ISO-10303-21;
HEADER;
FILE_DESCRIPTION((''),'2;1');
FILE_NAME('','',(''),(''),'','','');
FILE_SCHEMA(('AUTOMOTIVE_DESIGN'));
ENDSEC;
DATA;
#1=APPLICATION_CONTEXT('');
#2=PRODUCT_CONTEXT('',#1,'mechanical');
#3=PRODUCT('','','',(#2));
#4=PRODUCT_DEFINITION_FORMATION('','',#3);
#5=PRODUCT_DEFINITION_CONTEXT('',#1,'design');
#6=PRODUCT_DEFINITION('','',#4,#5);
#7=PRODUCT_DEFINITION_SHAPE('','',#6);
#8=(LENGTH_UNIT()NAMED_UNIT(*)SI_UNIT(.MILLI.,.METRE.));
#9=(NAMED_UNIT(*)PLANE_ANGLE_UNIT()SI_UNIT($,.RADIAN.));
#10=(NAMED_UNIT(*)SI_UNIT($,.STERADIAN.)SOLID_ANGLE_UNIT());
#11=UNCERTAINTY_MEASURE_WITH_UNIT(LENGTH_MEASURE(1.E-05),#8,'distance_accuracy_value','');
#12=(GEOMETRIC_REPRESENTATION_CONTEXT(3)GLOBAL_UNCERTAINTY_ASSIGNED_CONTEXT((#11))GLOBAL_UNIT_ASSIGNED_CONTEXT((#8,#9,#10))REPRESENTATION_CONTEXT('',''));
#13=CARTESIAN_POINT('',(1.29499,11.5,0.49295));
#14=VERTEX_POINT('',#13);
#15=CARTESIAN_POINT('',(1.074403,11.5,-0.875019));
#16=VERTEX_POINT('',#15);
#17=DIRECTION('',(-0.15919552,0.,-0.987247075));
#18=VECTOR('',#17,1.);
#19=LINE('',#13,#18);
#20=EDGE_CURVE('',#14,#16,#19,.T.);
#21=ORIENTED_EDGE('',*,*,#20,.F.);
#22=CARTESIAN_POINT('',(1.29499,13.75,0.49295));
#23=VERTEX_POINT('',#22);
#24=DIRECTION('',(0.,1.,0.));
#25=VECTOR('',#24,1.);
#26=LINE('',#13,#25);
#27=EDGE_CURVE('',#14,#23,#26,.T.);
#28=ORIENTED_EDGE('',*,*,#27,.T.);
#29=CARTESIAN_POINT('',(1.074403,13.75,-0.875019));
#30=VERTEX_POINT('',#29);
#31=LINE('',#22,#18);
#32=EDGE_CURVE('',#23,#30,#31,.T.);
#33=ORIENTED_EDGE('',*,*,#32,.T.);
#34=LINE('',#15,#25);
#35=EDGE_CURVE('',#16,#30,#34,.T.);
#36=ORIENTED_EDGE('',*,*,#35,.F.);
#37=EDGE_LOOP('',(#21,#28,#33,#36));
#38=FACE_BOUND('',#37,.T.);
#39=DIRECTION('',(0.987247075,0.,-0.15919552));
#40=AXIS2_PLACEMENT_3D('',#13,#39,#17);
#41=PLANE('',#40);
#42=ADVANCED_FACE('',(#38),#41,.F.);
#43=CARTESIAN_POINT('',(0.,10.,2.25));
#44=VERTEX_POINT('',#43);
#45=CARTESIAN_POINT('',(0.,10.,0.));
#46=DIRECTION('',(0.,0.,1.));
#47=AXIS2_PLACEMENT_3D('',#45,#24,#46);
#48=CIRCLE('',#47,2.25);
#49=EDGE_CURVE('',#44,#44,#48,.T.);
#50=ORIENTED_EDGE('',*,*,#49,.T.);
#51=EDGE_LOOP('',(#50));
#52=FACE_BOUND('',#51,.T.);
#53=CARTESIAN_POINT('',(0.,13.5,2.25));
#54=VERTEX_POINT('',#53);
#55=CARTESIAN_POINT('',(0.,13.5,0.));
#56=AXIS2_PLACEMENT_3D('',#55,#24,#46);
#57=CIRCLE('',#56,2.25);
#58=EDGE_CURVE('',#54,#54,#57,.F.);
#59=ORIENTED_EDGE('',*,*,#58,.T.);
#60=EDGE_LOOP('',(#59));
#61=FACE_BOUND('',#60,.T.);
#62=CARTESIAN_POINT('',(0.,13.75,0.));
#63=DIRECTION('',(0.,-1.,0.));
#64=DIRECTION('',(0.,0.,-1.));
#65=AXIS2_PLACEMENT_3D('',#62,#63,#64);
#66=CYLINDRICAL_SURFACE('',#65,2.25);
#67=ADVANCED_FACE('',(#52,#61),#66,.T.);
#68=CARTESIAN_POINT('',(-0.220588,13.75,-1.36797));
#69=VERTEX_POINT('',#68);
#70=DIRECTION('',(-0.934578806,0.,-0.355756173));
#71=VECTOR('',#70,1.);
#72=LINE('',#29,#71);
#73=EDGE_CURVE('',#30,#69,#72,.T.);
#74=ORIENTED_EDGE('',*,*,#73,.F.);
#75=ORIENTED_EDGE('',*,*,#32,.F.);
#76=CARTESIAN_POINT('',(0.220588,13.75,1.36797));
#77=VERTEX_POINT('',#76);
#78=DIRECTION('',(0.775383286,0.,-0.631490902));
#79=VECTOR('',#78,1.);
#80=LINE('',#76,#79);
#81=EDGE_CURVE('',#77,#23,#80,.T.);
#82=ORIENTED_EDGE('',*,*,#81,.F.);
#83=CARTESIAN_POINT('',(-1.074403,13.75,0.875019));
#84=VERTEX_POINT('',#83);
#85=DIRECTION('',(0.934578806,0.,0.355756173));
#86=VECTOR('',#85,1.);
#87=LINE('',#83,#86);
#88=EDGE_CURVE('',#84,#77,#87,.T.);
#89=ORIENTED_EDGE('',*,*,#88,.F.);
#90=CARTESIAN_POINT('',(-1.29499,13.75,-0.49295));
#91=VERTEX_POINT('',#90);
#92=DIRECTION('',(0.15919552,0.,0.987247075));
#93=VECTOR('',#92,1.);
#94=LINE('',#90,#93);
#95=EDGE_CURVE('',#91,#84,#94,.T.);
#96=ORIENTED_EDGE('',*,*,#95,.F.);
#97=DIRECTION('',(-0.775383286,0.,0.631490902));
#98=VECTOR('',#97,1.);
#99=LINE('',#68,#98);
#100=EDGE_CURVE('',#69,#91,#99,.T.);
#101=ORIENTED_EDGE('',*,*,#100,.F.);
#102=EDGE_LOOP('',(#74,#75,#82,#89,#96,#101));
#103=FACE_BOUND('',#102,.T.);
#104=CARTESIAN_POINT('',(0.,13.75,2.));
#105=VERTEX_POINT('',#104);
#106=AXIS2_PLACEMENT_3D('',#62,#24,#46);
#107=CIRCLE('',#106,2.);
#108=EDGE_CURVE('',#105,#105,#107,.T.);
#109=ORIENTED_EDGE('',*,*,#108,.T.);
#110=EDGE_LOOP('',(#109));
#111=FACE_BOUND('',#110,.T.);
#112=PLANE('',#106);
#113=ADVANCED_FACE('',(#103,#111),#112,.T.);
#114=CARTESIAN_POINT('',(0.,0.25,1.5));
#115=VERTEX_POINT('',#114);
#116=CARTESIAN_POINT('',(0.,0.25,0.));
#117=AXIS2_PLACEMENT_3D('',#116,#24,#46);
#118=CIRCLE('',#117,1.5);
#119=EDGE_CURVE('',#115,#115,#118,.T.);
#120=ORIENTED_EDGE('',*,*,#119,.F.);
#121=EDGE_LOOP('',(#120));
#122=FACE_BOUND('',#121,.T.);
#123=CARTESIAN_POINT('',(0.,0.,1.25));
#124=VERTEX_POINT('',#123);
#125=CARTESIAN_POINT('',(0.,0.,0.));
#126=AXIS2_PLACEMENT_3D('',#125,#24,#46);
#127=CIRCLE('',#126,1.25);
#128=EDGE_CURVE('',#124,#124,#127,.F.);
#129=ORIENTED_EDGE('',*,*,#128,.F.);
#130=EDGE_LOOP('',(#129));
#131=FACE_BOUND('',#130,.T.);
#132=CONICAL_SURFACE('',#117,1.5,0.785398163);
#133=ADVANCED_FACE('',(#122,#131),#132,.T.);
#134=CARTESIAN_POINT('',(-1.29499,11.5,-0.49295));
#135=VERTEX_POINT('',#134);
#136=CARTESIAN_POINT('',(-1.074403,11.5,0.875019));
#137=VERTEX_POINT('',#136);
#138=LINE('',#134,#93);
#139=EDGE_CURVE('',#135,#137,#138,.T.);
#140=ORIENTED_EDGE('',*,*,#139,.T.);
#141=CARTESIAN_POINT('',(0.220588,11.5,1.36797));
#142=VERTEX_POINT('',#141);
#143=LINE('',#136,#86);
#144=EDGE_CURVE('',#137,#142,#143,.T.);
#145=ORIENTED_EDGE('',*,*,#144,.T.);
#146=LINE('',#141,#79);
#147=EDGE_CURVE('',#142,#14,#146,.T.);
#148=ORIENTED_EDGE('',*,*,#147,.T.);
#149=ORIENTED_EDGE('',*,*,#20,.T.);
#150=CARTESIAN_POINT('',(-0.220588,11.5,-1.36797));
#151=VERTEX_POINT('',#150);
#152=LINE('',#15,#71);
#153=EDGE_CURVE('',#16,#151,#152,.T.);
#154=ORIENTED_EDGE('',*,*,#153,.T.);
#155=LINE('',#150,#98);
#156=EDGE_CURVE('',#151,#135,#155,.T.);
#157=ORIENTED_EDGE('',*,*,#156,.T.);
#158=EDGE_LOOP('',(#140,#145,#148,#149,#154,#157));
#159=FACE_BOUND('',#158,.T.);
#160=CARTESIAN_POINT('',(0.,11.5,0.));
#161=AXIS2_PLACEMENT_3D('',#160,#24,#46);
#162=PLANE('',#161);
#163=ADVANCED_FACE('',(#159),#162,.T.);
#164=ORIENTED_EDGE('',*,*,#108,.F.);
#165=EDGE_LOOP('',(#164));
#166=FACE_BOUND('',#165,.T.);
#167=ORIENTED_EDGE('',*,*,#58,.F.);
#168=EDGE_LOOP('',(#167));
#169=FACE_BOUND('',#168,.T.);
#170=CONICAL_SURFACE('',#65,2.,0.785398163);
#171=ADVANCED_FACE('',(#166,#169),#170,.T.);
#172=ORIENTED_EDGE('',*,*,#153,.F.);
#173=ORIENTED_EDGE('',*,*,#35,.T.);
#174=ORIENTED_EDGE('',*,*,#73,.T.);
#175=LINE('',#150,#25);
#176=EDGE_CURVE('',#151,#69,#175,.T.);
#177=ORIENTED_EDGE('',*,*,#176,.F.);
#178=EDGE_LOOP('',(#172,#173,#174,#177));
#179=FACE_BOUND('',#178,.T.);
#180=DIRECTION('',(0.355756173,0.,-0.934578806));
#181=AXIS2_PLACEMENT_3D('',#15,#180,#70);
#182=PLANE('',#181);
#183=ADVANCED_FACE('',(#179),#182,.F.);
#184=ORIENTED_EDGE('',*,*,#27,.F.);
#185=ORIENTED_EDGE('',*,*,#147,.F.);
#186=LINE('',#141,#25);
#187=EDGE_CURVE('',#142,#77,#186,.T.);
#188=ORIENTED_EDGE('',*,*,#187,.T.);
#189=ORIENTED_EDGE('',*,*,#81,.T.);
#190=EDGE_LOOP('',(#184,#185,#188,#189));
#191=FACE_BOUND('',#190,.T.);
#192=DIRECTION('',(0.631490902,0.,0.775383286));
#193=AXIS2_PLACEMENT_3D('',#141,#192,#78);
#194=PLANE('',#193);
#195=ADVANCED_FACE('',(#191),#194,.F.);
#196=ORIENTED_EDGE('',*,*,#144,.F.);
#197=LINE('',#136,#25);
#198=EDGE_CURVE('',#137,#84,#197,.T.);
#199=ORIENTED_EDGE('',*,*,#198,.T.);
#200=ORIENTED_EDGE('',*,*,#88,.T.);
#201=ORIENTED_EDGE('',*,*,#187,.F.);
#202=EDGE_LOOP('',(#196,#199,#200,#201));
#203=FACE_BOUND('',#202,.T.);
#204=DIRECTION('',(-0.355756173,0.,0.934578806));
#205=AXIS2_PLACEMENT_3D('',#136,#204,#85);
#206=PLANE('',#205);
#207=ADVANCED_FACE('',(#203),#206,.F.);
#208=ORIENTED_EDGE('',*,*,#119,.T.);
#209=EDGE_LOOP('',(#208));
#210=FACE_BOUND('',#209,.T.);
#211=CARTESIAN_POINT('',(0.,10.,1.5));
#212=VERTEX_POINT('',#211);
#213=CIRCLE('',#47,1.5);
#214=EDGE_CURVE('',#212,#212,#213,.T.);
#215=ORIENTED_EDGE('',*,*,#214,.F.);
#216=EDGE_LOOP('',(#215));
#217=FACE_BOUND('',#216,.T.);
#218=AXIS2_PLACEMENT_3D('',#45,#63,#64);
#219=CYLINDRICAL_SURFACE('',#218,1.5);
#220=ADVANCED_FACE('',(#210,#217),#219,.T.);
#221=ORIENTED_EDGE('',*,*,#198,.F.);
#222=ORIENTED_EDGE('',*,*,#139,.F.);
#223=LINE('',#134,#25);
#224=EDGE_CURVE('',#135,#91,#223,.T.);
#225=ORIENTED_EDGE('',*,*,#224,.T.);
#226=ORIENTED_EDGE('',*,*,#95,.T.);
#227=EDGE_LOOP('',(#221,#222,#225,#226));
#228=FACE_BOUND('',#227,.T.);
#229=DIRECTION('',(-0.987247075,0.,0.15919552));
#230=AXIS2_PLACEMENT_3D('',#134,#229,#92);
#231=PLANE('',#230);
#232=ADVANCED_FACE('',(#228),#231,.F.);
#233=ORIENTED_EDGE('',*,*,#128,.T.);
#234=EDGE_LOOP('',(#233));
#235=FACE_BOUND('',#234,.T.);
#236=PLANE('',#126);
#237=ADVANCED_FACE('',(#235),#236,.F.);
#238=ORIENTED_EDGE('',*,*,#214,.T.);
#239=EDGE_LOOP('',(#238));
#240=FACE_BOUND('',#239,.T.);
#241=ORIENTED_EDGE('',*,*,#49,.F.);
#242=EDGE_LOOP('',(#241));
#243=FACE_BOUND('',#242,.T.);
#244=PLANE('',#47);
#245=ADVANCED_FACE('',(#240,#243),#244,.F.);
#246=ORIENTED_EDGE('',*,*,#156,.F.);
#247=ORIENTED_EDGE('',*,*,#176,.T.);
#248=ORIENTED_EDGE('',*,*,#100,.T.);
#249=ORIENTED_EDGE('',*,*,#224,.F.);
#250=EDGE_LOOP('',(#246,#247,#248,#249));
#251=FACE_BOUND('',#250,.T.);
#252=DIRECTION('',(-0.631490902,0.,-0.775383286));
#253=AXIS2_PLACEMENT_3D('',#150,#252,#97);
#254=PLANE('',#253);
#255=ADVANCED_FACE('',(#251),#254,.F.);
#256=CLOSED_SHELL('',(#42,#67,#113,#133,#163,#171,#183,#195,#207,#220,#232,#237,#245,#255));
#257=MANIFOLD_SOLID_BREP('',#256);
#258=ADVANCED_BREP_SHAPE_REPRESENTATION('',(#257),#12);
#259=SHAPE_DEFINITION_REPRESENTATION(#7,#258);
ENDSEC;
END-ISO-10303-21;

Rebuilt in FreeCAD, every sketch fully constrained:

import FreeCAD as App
import Part
import Sketcher
Q = App.Units.Quantity


def edges_at(feature, points):
    """Names of the edges that pass closest to the given points."""
    edges = feature.Shape.Edges
    near = lambda p: min(range(len(edges)), key=lambda i: edges[i].distToShape(Part.Vertex(*p))[0])
    return sorted({f"Edge{near(p) + 1}" for p in points})


def add_polygon(sketch, points):
    """Adds a closed chain of lines whose ends are joined by coincident constraints."""
    first, n = sketch.GeometryCount, len(points)
    for a, b in zip(points, points[1:] + points[:1]):
        sketch.addGeometry(Part.LineSegment(App.Vector(*a, 0), App.Vector(*b, 0)), False)
    for i in range(n):
        sketch.addConstraint(Sketcher.Constraint("Coincident", first + i, 2, first + (i + 1) % n, 1))

doc = App.newDocument("Part")
params = doc.addObject("Spreadsheet::Sheet", "Params")
for row, (alias, value) in enumerate([
    ("sketch1_diameter", "3 mm"),
    ("pad1_length", "10 mm"),
    ("sketch2_diameter", "4.5 mm"),
    ("pad2_length", "3.75 mm"),
    ("pocket1_length", "2.25 mm"),
    ("chamfer_size", "0.25 mm"),
    ("chamfer2_size", "0.25 mm"),
], start=1):
    params.set(f"A{row}", alias)
    params.set(f"B{row}", "=" + value)
    params.setAlias(f"B{row}", alias)

body = doc.addObject("PartDesign::Body", "Body")

sketch1 = body.newObject("Sketcher::SketchObject", "Sketch")
sketch1.AttachmentSupport = (doc.getObject("XZ_Plane"), [""])
sketch1.MapMode = "FlatFace"
sketch1.addGeometry(Part.Circle(App.Vector(0, 0, 0), App.Vector(0, 0, 1), 1.5), False)
sketch1.addConstraint(Sketcher.Constraint("Coincident", 0, 3, -1, 1))
sketch1.addConstraint(Sketcher.Constraint("Diameter", 0, Q("3 mm")))
sketch1.setExpression("Constraints[1]", "Params.sketch1_diameter")
pad1 = body.newObject("PartDesign::Pad", "Pad")
pad1.Profile = sketch1
pad1.setExpression("Length", "Params.pad1_length")
pad1.Reversed = True

sketch2 = body.newObject("Sketcher::SketchObject", "Sketch001")
sketch2.AttachmentSupport = (doc.getObject("XZ_Plane"), [""])
sketch2.MapMode = "FlatFace"
sketch2.AttachmentOffset = App.Placement(App.Vector(0, 0, -10), App.Rotation())
sketch2.addGeometry(Part.Circle(App.Vector(0, 0, 0), App.Vector(0, 0, 1), 2.25), False)
sketch2.addConstraint(Sketcher.Constraint("Coincident", 0, 3, -1, 1))
sketch2.addConstraint(Sketcher.Constraint("Diameter", 0, Q("4.5 mm")))
sketch2.setExpression("Constraints[1]", "Params.sketch2_diameter")
pad2 = body.newObject("PartDesign::Pad", "Pad001")
pad2.Profile = sketch2
pad2.setExpression("Length", "Params.pad2_length")
pad2.Reversed = True

sketch3 = body.newObject("Sketcher::SketchObject", "Sketch002")
sketch3.AttachmentSupport = (doc.getObject("XZ_Plane"), [""])
sketch3.MapMode = "FlatFace"
sketch3.AttachmentOffset = App.Placement(App.Vector(0, 0, -13.75), App.Rotation())
add_polygon(sketch3, [(-1.074403, 0.875019), (0.220588, 1.36797), (1.29499, 0.49295), (1.074403, -0.875019), (-0.220588, -1.36797), (-1.29499, -0.49295)])
sketch3.addConstraint(Sketcher.Constraint("Symmetric", 0, 2, 3, 2, -1, 1))
sketch3.addConstraint(Sketcher.Constraint("Symmetric", 1, 2, 4, 2, -1, 1))
sketch3.addConstraint(Sketcher.Constraint("Symmetric", 2, 2, 5, 2, -1, 1))
sketch3.addConstraint(Sketcher.Constraint("Equal", 0, 1))
sketch3.addConstraint(Sketcher.Constraint("Equal", 1, 2))
sketch3.addConstraint(Sketcher.Constraint("DistanceY", 4, 2, 1, 2, Q("0.9859 mm")))
sketch3.addConstraint(Sketcher.Constraint("Distance", 0, Q("1.385641 mm")))
sketch3.addConstraint(Sketcher.Constraint("DistanceY", -1, 1, 0, 2, Q("1.36797 mm")))
sketch3.addConstraint(Sketcher.Constraint("DistanceX", -1, 1, 1, 2, Q("1.29499 mm")))
pocket1 = body.newObject("PartDesign::Pocket", "Pocket")
pocket1.Profile = sketch3
pocket1.setExpression("Length", "Params.pocket1_length")
pocket1.Reversed = True
doc.recompute()

chamfer = body.newObject("PartDesign::Chamfer", "Chamfer")
chamfer.Base = (pocket1, edges_at(pocket1, [(0, 13.75, -2.25)]))
chamfer.setExpression("Size", "Params.chamfer_size")
doc.recompute()

chamfer2 = body.newObject("PartDesign::Chamfer", "Chamfer001")
chamfer2.Base = (chamfer, edges_at(chamfer, [(0, 0, -1.5)]))
chamfer2.setExpression("Size", "Params.chamfer2_size")

doc.recompute()
